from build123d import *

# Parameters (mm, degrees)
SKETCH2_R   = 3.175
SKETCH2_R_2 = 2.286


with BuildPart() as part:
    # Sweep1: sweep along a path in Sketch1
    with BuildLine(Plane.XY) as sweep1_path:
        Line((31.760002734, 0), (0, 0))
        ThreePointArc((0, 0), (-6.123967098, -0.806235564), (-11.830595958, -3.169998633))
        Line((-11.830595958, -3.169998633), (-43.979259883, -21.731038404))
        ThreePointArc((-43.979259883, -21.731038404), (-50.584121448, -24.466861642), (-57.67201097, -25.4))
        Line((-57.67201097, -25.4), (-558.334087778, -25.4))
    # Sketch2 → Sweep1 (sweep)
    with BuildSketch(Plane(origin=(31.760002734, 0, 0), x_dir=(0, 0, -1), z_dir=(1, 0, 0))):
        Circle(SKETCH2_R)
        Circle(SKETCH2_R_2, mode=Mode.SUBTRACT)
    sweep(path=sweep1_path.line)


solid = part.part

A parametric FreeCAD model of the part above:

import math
import FreeCAD as App
import Part
import Sketcher
from FreeCAD import Vector
Q = App.Units.Quantity

doc = App.newDocument("Part")
body = doc.addObject("PartDesign::Body", "Body")

sketch1 = body.newObject("Sketcher::SketchObject", "Sketch")
sketch1.AttachmentSupport = (doc.getObject("YZ_Plane"), [""])
sketch1.MapMode = "FlatFace"
sketch1.AttachmentOffset = App.Placement(Vector(0, 0, 31.760003), App.Rotation())
sketch1.addGeometry([
    Part.Circle(Vector(0, 0, 0), Vector(0, 0, 1), 3.2),
    Part.Circle(Vector(0, 0, 0), Vector(0, 0, 1), 2.3),
], False)
sketch1.addConstraint([
    Sketcher.Constraint("Coincident", 0, 3, -1, 1),
    Sketcher.Constraint("Coincident", 1, 3, -1, 1),
    Sketcher.Constraint("Diameter", 0, Q("0.25 in")),
    Sketcher.Constraint("Diameter", 1, Q("0.18 in")),
])

sketch2 = body.newObject("Sketcher::SketchObject", "Sketch001")
sketch2.AttachmentSupport = (doc.getObject("XY_Plane"), [""])
sketch2.MapMode = "FlatFace"
sketch2.addGeometry([
    Part.LineSegment(Vector(32, 0, 0), Vector(0, 0, 0)),
    Part.ArcOfCircle(Part.Circle(Vector(0, -24, 0), Vector(0, 0, 1), 24), math.radians(90), math.radians(120)),
    Part.LineSegment(Vector(-12, -3, 0), Vector(-44, -22, 0)),
    Part.ArcOfCircle(Part.Circle(Vector(-58, 2, 0), Vector(0, 0, 1), 27), math.radians(-90), math.radians(-60)),
    Part.LineSegment(Vector(-58, -25, 0), Vector(-558, -25, 0)),
], False)
sketch2.addConstraint([
    Sketcher.Constraint("Tangent", 0, 2, 1, 1),
    Sketcher.Constraint("Tangent", 1, 2, 2, 1),
    Sketcher.Constraint("Tangent", 2, 2, 3, 2),
    Sketcher.Constraint("Tangent", 3, 1, 4, 1),
    Sketcher.Constraint("Horizontal", 0),
    Sketcher.Constraint("Horizontal", 4),
    Sketcher.Constraint("Coincident", 0, 2, -1, 1),
    Sketcher.Constraint("DistanceY", 3, 1, -1, 1, Q("1 in")),
    Sketcher.Constraint("Angle", 2, Q("-150 deg")),
    Sketcher.Constraint("Radius", 1, Q("23.661192 mm")),
    Sketcher.Constraint("Radius", 3, Q("27.385502 mm")),
    Sketcher.Constraint("DistanceX", 1, 2, 0, 1, Q("43.590599 mm")),
    Sketcher.Constraint("DistanceX", 4, 2, 4, 1, Q("500.662077 mm")),
])
doc.recompute()

additivepipe = body.newObject("PartDesign::AdditivePipe", "AdditivePipe")
additivepipe.Profile = sketch1
additivepipe.Spine = (sketch2, ["Edge1", "Edge2", "Edge3", "Edge4", "Edge5"])

doc.recompute()
